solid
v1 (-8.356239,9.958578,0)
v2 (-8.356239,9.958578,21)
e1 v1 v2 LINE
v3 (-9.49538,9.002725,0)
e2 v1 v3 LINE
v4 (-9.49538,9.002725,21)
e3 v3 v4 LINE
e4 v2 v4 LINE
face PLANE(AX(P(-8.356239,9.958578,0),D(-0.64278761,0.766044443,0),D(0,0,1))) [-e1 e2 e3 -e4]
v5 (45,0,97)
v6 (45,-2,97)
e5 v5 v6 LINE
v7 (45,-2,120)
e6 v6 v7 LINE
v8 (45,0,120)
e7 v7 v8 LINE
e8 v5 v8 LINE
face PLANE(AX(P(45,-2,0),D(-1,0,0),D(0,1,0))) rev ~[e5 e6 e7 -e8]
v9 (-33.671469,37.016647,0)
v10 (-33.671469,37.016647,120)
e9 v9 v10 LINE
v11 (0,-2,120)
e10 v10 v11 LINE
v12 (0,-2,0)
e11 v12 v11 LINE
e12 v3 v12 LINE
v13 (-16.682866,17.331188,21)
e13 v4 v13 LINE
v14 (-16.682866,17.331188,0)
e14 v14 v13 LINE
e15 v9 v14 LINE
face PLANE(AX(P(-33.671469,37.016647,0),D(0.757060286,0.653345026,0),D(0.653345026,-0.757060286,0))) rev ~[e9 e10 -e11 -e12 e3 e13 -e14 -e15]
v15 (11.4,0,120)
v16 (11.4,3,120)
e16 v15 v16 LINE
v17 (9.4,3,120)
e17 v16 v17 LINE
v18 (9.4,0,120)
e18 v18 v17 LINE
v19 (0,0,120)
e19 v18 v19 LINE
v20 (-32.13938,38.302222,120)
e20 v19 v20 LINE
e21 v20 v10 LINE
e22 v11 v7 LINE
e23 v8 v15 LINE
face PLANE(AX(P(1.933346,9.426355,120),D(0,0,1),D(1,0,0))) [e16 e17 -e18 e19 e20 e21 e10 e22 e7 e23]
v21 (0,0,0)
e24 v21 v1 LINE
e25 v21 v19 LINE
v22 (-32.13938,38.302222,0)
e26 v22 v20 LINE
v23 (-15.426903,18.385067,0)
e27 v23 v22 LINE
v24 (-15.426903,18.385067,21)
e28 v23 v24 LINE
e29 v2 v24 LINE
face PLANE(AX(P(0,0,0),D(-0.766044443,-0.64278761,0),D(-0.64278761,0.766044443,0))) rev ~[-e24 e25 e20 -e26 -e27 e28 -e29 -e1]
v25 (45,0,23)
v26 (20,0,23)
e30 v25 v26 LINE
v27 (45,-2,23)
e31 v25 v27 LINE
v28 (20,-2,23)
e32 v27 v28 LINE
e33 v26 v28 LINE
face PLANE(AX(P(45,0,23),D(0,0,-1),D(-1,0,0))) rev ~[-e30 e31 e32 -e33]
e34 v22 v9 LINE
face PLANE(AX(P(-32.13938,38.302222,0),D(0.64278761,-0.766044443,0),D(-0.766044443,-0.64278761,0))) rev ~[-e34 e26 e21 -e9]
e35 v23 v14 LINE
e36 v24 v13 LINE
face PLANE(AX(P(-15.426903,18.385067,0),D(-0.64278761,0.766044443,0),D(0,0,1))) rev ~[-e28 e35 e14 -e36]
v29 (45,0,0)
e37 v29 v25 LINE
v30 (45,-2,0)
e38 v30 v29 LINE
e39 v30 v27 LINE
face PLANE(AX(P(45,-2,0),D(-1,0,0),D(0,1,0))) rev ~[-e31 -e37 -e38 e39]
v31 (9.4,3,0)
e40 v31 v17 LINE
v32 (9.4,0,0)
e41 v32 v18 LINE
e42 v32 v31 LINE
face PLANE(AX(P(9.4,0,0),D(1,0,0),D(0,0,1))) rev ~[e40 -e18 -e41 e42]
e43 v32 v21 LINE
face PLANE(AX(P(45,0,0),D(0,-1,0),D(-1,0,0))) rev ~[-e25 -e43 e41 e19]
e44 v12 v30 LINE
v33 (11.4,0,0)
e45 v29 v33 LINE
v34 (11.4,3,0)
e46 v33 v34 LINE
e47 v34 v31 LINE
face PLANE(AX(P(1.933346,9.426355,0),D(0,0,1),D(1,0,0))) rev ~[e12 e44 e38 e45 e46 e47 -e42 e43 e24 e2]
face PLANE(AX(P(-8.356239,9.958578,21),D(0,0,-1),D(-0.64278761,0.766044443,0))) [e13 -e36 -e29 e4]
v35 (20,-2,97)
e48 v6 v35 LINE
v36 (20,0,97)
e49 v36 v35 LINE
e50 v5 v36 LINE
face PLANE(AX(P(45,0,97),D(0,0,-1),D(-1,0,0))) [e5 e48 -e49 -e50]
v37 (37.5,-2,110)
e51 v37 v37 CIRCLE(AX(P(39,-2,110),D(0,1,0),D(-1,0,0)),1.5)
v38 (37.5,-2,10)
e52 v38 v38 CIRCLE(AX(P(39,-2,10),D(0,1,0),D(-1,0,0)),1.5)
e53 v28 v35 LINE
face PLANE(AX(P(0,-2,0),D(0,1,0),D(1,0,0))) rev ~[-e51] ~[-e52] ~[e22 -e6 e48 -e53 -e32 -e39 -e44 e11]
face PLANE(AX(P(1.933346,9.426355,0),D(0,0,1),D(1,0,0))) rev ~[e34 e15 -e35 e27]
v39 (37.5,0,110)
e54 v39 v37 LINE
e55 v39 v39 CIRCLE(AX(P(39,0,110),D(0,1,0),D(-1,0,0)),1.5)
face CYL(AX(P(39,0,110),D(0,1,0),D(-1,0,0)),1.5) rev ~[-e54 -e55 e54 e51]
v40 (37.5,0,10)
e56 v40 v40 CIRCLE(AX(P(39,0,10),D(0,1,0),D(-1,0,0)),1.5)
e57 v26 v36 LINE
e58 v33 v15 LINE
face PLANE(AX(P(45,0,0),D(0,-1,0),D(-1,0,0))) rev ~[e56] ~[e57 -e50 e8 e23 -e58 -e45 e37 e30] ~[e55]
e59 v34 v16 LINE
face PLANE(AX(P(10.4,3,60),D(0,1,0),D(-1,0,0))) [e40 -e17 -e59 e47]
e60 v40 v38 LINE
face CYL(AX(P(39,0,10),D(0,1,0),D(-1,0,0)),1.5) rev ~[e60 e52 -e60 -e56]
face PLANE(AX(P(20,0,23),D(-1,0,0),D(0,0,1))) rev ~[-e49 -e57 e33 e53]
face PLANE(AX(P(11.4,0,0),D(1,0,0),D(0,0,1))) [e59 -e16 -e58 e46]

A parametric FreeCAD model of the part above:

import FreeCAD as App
import Part
import Sketcher

V = App.Vector
Q = App.Units.Quantity

doc = App.newDocument("Part")
body = doc.addObject("PartDesign::Body", "Body")

# Sketch on XY plane
sketch1 = body.newObject("Sketcher::SketchObject", "Sketch")
sketch1.AttachmentSupport = (doc.getObject("XY_Plane"), [""])
sketch1.MapMode = "FlatFace"
sketch1.addGeometry(Part.LineSegment(V(45, 0, 0), V(0, 0, 0)), False)
sketch1.addGeometry(Part.LineSegment(V(0, 0, 0), V(-32.13938, 38.302222, 0)), False)
sketch1.addGeometry(Part.LineSegment(V(-32.13938, 38.302222, 0), V(-33.671469, 37.016647, 0)), False)
sketch1.addGeometry(Part.LineSegment(V(-33.671469, 37.016647, 0), V(0, -2, 0)), False)
sketch1.addGeometry(Part.LineSegment(V(0, -2, 0), V(45, -2, 0)), False)
sketch1.addGeometry(Part.LineSegment(V(45, -2, 0), V(45, 0, 0)), False)
sketch1.addConstraint(Sketcher.Constraint("Coincident", 0, 2, 1, 1))
sketch1.addConstraint(Sketcher.Constraint("Coincident", 1, 2, 2, 1))
sketch1.addConstraint(Sketcher.Constraint("Coincident", 2, 2, 3, 1))
sketch1.addConstraint(Sketcher.Constraint("Coincident", 3, 2, 4, 1))
sketch1.addConstraint(Sketcher.Constraint("Coincident", 4, 2, 5, 1))
sketch1.addConstraint(Sketcher.Constraint("Coincident", 5, 2, 0, 1))
sketch1.addConstraint(Sketcher.Constraint("Horizontal", 0))
sketch1.addConstraint(Sketcher.Constraint("Horizontal", 4))
sketch1.addConstraint(Sketcher.Constraint("Vertical", 5))
sketch1.addConstraint(Sketcher.Constraint("Coincident", 0, 2, -1, 1))
sketch1.addConstraint(Sketcher.Constraint("PointOnObject", 3, 2, -2))
sketch1.addConstraint(Sketcher.Constraint("Perpendicular", 1, 2))
sketch1.addConstraint(Sketcher.Constraint("DistanceX", 0, 2, 0, 1, Q("45 mm")))
sketch1.addConstraint(Sketcher.Constraint("DistanceY", 5, 1, 5, 2, Q("2 mm")))
sketch1.addConstraint(Sketcher.Constraint("Angle", 1, Q("130 deg")))
sketch1.addConstraint(Sketcher.Constraint("Distance", 1, Q("50 mm")))
sketch1.addConstraint(Sketcher.Constraint("Distance", 2, Q("2 mm")))
pad1 = body.newObject("PartDesign::Pad", "Pad")
pad1.Profile = sketch1
pad1.Length = 120

# Sketch on XZ plane
sketch2 = body.newObject("Sketcher::SketchObject", "Sketch001")
sketch2.AttachmentSupport = (doc.getObject("XZ_Plane"), [""])
sketch2.MapMode = "FlatFace"
sketch2.addGeometry(Part.Circle(V(39, 110, 0), V(0, 0, 1), 1.5), False)
sketch2.addGeometry(Part.Circle(V(39, 10, 0), V(0, 0, 1), 1.5), False)
sketch2.addGeometry(Part.LineSegment(V(45, 97, 0), V(45, 23, 0)), False)
sketch2.addGeometry(Part.LineSegment(V(45, 23, 0), V(20, 23, 0)), False)
sketch2.addGeometry(Part.LineSegment(V(20, 23, 0), V(20, 97, 0)), False)
sketch2.addGeometry(Part.LineSegment(V(20, 97, 0), V(45, 97, 0)), False)
sketch2.addConstraint(Sketcher.Constraint("Coincident", 2, 2, 3, 1))
sketch2.addConstraint(Sketcher.Constraint("Coincident", 3, 2, 4, 1))
sketch2.addConstraint(Sketcher.Constraint("Coincident", 4, 2, 5, 1))
sketch2.addConstraint(Sketcher.Constraint("Coincident", 5, 2, 2, 1))
sketch2.addConstraint(Sketcher.Constraint("Vertical", 2))
sketch2.addConstraint(Sketcher.Constraint("Horizontal", 3))
sketch2.addConstraint(Sketcher.Constraint("Vertical", 4))
sketch2.addConstraint(Sketcher.Constraint("Horizontal", 5))
sketch2.addConstraint(Sketcher.Constraint("Equal", 0, 1))
sketch2.addConstraint(Sketcher.Constraint("Vertical", 0, 3, 1, 3))
sketch2.addConstraint(Sketcher.Constraint("Diameter", 0, Q("3 mm")))
sketch2.addConstraint(Sketcher.Constraint("DistanceX", 3, 2, 3, 1, Q("25 mm")))
sketch2.addConstraint(Sketcher.Constraint("DistanceY", 2, 2, 2, 1, Q("74 mm")))
sketch2.addConstraint(Sketcher.Constraint("DistanceX", -1, 1, 0, 3, Q("39 mm")))
sketch2.addConstraint(Sketcher.Constraint("DistanceY", -1, 1, 0, 3, Q("110 mm")))
sketch2.addConstraint(Sketcher.Constraint("DistanceY", -1, 1, 1, 3, Q("10 mm")))
sketch2.addConstraint(Sketcher.Constraint("DistanceX", -1, 1, 2, 2, Q("45 mm")))
sketch2.addConstraint(Sketcher.Constraint("DistanceY", -1, 1, 2, 2, Q("23 mm")))
pocket1 = body.newObject("PartDesign::Pocket", "Pocket")
pocket1.Profile = sketch2
pocket1.Type = "ThroughAll"
pocket1.Reversed = True

# Sketch on XZ plane
sketch3 = body.newObject("Sketcher::SketchObject", "Sketch002")
sketch3.AttachmentSupport = (doc.getObject("XZ_Plane"), [""])
sketch3.MapMode = "FlatFace"
sketch3.addGeometry(Part.LineSegment(V(11.4, 120, 0), V(11.4, 0, 0)), False)
sketch3.addGeometry(Part.LineSegment(V(11.4, 0, 0), V(9.4, 0, 0)), False)
sketch3.addGeometry(Part.LineSegment(V(9.4, 0, 0), V(9.4, 120, 0)), False)
sketch3.addGeometry(Part.LineSegment(V(9.4, 120, 0), V(11.4, 120, 0)), False)
sketch3.addConstraint(Sketcher.Constraint("Coincident", 0, 2, 1, 1))
sketch3.addConstraint(Sketcher.Constraint("Coincident", 1, 2, 2, 1))
sketch3.addConstraint(Sketcher.Constraint("Coincident", 2, 2, 3, 1))
sketch3.addConstraint(Sketcher.Constraint("Coincident", 3, 2, 0, 1))
sketch3.addConstraint(Sketcher.Constraint("Vertical", 0))
sketch3.addConstraint(Sketcher.Constraint("Horizontal", 1))
sketch3.addConstraint(Sketcher.Constraint("Vertical", 2))
sketch3.addConstraint(Sketcher.Constraint("Horizontal", 3))
sketch3.addConstraint(Sketcher.Constraint("PointOnObject", 0, 2, -1))
sketch3.addConstraint(Sketcher.Constraint("DistanceX", 1, 2, 1, 1, Q("2 mm")))
sketch3.addConstraint(Sketcher.Constraint("DistanceY", 0, 2, 0, 1, Q("120 mm")))
sketch3.addConstraint(Sketcher.Constraint("DistanceX", -1, 1, 0, 2, Q("11.4 mm")))
pad2 = body.newObject("PartDesign::Pad", "Pad001")
pad2.Profile = sketch3
pad2.Length = 3
pad2.Reversed = True

# Sketch on an angled plane
sketch4 = body.newObject("Sketcher::SketchObject", "Sketch003")
sketch4.Placement = App.Placement(V(0, 0, 0), App.Rotation(V(-0.64278761, 0.766044443, 0), V(0, 0, 1), V(0.766044443, 0.64278761, 0), "ZXY"))
sketch4.addGeometry(Part.LineSegment(V(13, 21, 0), V(13, 0, 0)), False)
sketch4.addGeometry(Part.LineSegment(V(13, 0, 0), V(24, 0, 0)), False)
sketch4.addGeometry(Part.LineSegment(V(24, 0, 0), V(24, 21, 0)), False)
sketch4.addGeometry(Part.LineSegment(V(24, 21, 0), V(13, 21, 0)), False)
sketch4.addConstraint(Sketcher.Constraint("Coincident", 0, 2, 1, 1))
sketch4.addConstraint(Sketcher.Constraint("Coincident", 1, 2, 2, 1))
sketch4.addConstraint(Sketcher.Constraint("Coincident", 2, 2, 3, 1))
sketch4.addConstraint(Sketcher.Constraint("Coincident", 3, 2, 0, 1))
sketch4.addConstraint(Sketcher.Constraint("Vertical", 0))
sketch4.addConstraint(Sketcher.Constraint("Horizontal", 1))
sketch4.addConstraint(Sketcher.Constraint("Vertical", 2))
sketch4.addConstraint(Sketcher.Constraint("Horizontal", 3))
sketch4.addConstraint(Sketcher.Constraint("PointOnObject", 0, 2, -1))
sketch4.addConstraint(Sketcher.Constraint("DistanceX", 1, 1, 1, 2, Q("11 mm")))
sketch4.addConstraint(Sketcher.Constraint("DistanceY", 0, 2, 0, 1, Q("21 mm")))
sketch4.addConstraint(Sketcher.Constraint("DistanceX", -1, 1, 0, 2, Q("13 mm")))
pocket2 = body.newObject("PartDesign::Pocket", "Pocket001")
pocket2.Profile = sketch4
pocket2.Length = 25

doc.recompute()
